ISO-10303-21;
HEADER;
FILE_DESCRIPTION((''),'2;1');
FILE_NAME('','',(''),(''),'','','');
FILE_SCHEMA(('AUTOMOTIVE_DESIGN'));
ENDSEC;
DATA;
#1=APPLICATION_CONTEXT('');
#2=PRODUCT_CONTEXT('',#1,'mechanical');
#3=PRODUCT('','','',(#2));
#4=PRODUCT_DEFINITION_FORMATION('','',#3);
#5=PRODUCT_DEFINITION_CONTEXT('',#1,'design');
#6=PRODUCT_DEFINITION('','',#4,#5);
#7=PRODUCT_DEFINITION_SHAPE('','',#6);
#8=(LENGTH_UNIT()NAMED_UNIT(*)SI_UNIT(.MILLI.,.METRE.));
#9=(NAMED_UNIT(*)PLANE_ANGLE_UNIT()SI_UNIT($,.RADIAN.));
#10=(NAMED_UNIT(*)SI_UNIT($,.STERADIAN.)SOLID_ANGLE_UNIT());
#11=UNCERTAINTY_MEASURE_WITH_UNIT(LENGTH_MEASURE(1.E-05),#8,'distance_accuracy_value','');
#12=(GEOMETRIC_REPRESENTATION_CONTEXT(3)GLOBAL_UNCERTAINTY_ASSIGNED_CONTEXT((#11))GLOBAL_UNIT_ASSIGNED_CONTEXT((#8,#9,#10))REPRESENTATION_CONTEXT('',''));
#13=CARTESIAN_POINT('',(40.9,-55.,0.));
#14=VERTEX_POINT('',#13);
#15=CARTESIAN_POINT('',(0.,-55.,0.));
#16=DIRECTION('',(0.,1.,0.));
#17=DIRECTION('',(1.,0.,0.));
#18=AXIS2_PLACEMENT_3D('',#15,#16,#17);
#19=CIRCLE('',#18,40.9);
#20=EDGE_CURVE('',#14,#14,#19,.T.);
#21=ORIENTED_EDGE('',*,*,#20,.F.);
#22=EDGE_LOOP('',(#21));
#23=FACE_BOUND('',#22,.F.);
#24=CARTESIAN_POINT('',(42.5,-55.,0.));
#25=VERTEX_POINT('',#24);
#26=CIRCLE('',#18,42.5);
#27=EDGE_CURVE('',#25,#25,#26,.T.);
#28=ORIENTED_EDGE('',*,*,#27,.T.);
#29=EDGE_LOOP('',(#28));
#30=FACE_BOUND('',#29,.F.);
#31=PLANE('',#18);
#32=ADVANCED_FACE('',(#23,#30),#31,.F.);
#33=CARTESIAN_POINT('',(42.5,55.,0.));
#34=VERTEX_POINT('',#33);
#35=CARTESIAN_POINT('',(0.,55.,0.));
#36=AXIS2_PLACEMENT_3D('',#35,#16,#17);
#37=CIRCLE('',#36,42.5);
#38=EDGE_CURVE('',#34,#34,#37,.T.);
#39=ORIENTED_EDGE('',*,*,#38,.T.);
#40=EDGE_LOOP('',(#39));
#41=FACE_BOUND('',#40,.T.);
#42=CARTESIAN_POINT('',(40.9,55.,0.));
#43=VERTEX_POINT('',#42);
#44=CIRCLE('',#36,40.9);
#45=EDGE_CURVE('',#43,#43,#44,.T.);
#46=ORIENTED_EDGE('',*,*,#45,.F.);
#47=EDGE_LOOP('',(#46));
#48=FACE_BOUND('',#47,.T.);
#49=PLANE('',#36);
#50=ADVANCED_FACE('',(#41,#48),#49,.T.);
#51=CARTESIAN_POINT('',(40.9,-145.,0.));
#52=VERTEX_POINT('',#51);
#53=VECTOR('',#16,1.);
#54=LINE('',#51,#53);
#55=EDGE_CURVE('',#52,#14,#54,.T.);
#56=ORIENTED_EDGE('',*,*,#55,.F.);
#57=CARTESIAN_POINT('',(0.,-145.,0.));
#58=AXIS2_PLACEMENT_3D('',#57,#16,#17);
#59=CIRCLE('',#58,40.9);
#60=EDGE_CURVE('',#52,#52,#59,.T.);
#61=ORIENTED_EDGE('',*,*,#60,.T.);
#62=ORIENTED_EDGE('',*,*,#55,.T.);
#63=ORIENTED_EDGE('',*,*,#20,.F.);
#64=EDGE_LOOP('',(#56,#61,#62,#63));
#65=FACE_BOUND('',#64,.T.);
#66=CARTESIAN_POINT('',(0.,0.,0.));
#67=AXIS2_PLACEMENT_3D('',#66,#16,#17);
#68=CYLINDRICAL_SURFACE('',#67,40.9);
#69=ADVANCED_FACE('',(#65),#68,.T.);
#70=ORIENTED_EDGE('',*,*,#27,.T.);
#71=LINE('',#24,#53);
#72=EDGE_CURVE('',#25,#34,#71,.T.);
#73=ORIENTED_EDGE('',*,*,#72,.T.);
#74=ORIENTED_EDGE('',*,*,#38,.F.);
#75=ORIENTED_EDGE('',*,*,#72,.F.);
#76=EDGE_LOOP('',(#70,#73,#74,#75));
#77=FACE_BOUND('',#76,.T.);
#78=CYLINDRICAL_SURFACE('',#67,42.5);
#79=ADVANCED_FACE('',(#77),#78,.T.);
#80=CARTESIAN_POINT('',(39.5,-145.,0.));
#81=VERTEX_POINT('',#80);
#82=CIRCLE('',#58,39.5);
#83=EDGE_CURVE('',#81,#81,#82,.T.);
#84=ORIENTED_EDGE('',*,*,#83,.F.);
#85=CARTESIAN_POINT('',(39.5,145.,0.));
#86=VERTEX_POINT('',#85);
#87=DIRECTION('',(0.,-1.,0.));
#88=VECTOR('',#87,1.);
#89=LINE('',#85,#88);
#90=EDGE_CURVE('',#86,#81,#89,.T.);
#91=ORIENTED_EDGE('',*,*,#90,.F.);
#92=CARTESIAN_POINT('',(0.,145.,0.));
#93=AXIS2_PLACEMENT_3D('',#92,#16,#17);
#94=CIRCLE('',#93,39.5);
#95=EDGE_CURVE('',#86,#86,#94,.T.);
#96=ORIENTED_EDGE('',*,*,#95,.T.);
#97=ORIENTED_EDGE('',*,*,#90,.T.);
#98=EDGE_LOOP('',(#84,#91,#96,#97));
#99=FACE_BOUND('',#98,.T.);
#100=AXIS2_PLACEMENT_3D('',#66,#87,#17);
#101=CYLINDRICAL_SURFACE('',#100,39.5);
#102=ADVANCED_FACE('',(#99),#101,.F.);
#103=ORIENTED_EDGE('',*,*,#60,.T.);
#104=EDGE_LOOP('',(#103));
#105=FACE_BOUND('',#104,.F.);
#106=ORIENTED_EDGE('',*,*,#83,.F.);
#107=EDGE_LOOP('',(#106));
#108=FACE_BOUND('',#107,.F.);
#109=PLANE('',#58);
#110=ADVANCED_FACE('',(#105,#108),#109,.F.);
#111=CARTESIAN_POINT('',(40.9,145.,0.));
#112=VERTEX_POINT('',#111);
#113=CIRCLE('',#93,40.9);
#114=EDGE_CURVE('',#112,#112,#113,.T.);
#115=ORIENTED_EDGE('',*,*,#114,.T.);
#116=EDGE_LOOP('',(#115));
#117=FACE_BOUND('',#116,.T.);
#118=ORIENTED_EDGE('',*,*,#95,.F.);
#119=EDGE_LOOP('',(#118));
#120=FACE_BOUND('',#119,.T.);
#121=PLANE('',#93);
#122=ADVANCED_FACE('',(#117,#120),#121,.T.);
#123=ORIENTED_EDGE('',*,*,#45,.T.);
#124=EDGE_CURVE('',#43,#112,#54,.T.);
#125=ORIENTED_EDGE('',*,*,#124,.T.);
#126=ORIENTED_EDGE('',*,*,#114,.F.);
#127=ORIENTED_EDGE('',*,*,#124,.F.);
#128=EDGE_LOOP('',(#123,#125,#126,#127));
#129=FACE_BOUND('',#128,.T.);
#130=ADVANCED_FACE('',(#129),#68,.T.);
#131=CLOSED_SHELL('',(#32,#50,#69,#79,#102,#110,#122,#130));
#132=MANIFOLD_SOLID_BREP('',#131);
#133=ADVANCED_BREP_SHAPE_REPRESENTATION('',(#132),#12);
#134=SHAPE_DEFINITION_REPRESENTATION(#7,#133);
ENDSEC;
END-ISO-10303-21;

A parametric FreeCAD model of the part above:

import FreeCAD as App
import Part
import Sketcher

V = App.Vector
Q = App.Units.Quantity

doc = App.newDocument("Part")
params = doc.addObject("Spreadsheet::Sheet", "Params")
for row, (alias, value) in enumerate([
    ("sketch1_diameter", "79 mm"),
    ("sketch1_diameter2", "81.8 mm"),
    ("pad1_length", "290 mm"),
    ("sketch2_diameter", "85 mm"),
    ("sketch2_diameter2", "81.8 mm"),
    ("pad2_length", "110 mm"),
], start=1):
    params.set(f"A{row}", alias)
    params.set(f"B{row}", "=" + value)
    params.setAlias(f"B{row}", alias)

body = doc.addObject("PartDesign::Body", "Body")

sketch1 = body.newObject("Sketcher::SketchObject", "Sketch")
sketch1.AttachmentSupport = (doc.getObject("XZ_Plane"), [""])
sketch1.MapMode = "FlatFace"
sketch1.addGeometry(Part.Circle(V(0, 0, 0), V(0, 0, 1), 40.9), False)
sketch1.addGeometry(Part.Circle(V(0, 0, 0), V(0, 0, 1), 39.5), False)
sketch1.addConstraint(Sketcher.Constraint("Coincident", 0, 3, -1, 1))
sketch1.addConstraint(Sketcher.Constraint("Coincident", 1, 3, -1, 1))
sketch1.addConstraint(Sketcher.Constraint("Diameter", 1, Q("79 mm")))
sketch1.addConstraint(Sketcher.Constraint("Diameter", 0, Q("81.8 mm")))
sketch1.setExpression("Constraints[2]", "Params.sketch1_diameter")
sketch1.setExpression("Constraints[3]", "Params.sketch1_diameter2")
pad1 = body.newObject("PartDesign::Pad", "Pad")
pad1.Profile = sketch1
pad1.setExpression("Length", "Params.pad1_length")
pad1.Midplane = True

sketch2 = body.newObject("Sketcher::SketchObject", "Sketch001")
sketch2.AttachmentSupport = (doc.getObject("XZ_Plane"), [""])
sketch2.MapMode = "FlatFace"
sketch2.addGeometry(Part.Circle(V(0, 0, 0), V(0, 0, 1), 42.5), False)
sketch2.addGeometry(Part.Circle(V(0, 0, 0), V(0, 0, 1), 40.9), False)
sketch2.addConstraint(Sketcher.Constraint("Coincident", 0, 3, -1, 1))
sketch2.addConstraint(Sketcher.Constraint("Coincident", 1, 3, -1, 1))
sketch2.addConstraint(Sketcher.Constraint("Diameter", 0, Q("85 mm")))
sketch2.addConstraint(Sketcher.Constraint("Diameter", 1, Q("81.8 mm")))
sketch2.setExpression("Constraints[2]", "Params.sketch2_diameter")
sketch2.setExpression("Constraints[3]", "Params.sketch2_diameter2")
pad2 = body.newObject("PartDesign::Pad", "Pad001")
pad2.Profile = sketch2
pad2.setExpression("Length", "Params.pad2_length")
pad2.Midplane = True

doc.recompute()
